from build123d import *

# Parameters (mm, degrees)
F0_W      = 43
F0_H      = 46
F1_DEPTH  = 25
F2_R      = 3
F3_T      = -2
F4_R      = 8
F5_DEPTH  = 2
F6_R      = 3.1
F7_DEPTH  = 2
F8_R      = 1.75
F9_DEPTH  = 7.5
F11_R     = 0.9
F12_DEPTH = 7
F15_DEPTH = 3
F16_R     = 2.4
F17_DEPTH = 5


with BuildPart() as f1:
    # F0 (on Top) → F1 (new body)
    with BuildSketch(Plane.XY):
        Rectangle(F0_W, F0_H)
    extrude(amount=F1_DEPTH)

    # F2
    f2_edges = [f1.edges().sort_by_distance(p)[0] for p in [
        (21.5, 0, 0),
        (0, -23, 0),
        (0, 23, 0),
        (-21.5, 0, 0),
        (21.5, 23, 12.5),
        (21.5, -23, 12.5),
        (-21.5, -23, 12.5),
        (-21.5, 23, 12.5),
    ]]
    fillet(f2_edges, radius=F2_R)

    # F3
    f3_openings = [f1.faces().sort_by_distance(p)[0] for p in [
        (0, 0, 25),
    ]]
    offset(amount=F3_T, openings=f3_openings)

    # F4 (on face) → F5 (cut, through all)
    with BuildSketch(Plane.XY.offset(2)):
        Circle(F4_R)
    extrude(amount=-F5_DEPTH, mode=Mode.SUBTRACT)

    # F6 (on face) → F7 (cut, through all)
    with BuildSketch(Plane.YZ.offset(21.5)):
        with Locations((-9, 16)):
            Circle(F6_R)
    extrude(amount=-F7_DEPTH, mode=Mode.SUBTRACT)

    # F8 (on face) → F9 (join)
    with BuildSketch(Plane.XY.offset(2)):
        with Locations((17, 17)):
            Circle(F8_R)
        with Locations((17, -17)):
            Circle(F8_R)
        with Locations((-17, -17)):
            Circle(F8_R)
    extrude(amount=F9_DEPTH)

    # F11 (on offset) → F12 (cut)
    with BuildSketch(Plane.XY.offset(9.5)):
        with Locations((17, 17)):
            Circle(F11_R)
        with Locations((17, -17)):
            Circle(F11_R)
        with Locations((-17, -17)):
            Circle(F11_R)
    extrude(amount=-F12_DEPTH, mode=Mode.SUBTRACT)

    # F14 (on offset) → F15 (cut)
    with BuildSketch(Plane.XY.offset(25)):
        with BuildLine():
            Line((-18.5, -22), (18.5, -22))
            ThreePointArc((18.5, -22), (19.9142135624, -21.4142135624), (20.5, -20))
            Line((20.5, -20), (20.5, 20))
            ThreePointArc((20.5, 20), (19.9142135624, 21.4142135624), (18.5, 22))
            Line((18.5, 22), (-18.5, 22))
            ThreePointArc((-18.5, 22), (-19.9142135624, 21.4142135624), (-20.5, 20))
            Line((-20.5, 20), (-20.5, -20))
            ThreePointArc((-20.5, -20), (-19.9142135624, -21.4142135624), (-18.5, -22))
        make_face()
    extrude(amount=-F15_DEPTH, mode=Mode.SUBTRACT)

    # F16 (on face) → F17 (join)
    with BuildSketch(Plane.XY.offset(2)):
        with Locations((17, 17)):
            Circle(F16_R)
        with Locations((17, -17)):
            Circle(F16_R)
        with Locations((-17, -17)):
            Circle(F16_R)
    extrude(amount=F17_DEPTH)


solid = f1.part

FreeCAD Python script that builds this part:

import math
import FreeCAD as App
import Part
import Sketcher


def edges_at(feature, points):
    """Names of the edges that pass closest to the given points."""
    edges = feature.Shape.Edges
    near = lambda p: min(range(len(edges)), key=lambda i: edges[i].distToShape(Part.Vertex(*p))[0])
    return sorted({f"Edge{near(p) + 1}" for p in points})


def faces_at(feature, points):
    """Names of the faces that lie closest to the given points."""
    faces = feature.Shape.Faces
    near = lambda p: min(range(len(faces)), key=lambda i: faces[i].distToShape(Part.Vertex(*p))[0])
    return sorted({f"Face{near(p) + 1}" for p in points})

doc = App.newDocument("Part")
body = doc.addObject("PartDesign::Body", "Body")

sketch1 = doc.addObject("Sketcher::SketchObject", "Sketch")
body.addObject(sketch1)
sketch1.AttachmentSupport = (doc.XY_Plane, [""])
sketch1.MapMode = "FlatFace"
sketch1.addGeometry([
    Part.LineSegment(App.Vector(-22, 23, 0), App.Vector(-22, -23, 0)),
    Part.LineSegment(App.Vector(-22, -23, 0), App.Vector(22, -23, 0)),
    Part.LineSegment(App.Vector(22, -23, 0), App.Vector(22, 23, 0)),
    Part.LineSegment(App.Vector(22, 23, 0), App.Vector(-22, 23, 0)),
], False)
sketch1.addConstraint([
    Sketcher.Constraint("Coincident", 0, 2, 1, 1),
    Sketcher.Constraint("Coincident", 1, 2, 2, 1),
    Sketcher.Constraint("Coincident", 2, 2, 3, 1),
    Sketcher.Constraint("Coincident", 3, 2, 0, 1),
    Sketcher.Constraint("Vertical", 0),
    Sketcher.Constraint("Horizontal", 1),
    Sketcher.Constraint("Vertical", 2),
    Sketcher.Constraint("Horizontal", 3),
    Sketcher.Constraint("Symmetric", 0, 2, 2, 2, -1, 1),
    Sketcher.Constraint("DistanceX", 1, 1, 1, 2, 43.0),
    Sketcher.Constraint("DistanceY", 0, 2, 0, 1, 46.0),
])
pad1 = doc.addObject("PartDesign::Pad", "Pad")
body.addObject(pad1)
pad1.Profile = sketch1
pad1.Length = 25
doc.recompute()

fillet = doc.addObject("PartDesign::Fillet", "Fillet")
body.addObject(fillet)
fillet.Base = (pad1, edges_at(pad1, [
    (21.5, 0, 0),
    (0, -23, 0),
    (0, 23, 0),
    (-21.5, 0, 0),
    (21.5, 23, 12.5),
    (21.5, -23, 12.5),
    (-21.5, -23, 12.5),
    (-21.5, 23, 12.5),
]))
fillet.Radius = 3
doc.recompute()

thickness = doc.addObject("PartDesign::Thickness", "Thickness")
body.addObject(thickness)
thickness.Base = (fillet, faces_at(fillet, [(0, 0, 25)]))
thickness.Value = 2
thickness.Reversed = True
thickness.Join = "Arc"

sketch2 = doc.addObject("Sketcher::SketchObject", "Sketch001")
body.addObject(sketch2)
sketch2.AttachmentSupport = (doc.XY_Plane, [""])
sketch2.MapMode = "FlatFace"
sketch2.AttachmentOffset = App.Placement(App.Vector(0, 0, 2), App.Rotation())
sketch2.addGeometry(Part.Circle(App.Vector(0, 0, 0), App.Vector(0, 0, 1), 8), False)
sketch2.addConstraint([
    Sketcher.Constraint("Coincident", 0, 3, -1, 1),
    Sketcher.Constraint("Diameter", 0, 16.0),
])
pocket1 = doc.addObject("PartDesign::Pocket", "Pocket")
body.addObject(pocket1)
pocket1.Profile = sketch2
pocket1.Type = "ThroughAll"

sketch3 = doc.addObject("Sketcher::SketchObject", "Sketch002")
body.addObject(sketch3)
sketch3.AttachmentSupport = (doc.YZ_Plane, [""])
sketch3.MapMode = "FlatFace"
sketch3.AttachmentOffset = App.Placement(App.Vector(0, 0, 21.5), App.Rotation())
sketch3.addGeometry(Part.Circle(App.Vector(-9, 16, 0), App.Vector(0, 0, 1), 3.1), False)
sketch3.addConstraint([
    Sketcher.Constraint("Diameter", 0, 6.2),
    Sketcher.Constraint("DistanceX", 0, 3, -1, 1, 9.0),
    Sketcher.Constraint("DistanceY", -1, 1, 0, 3, 16.0),
])
pocket2 = doc.addObject("PartDesign::Pocket", "Pocket001")
body.addObject(pocket2)
pocket2.Profile = sketch3
pocket2.Length = 2

sketch4 = doc.addObject("Sketcher::SketchObject", "Sketch003")
body.addObject(sketch4)
sketch4.AttachmentSupport = (doc.XY_Plane, [""])
sketch4.MapMode = "FlatFace"
sketch4.AttachmentOffset = App.Placement(App.Vector(0, 0, 2), App.Rotation())
sketch4.addGeometry([
    Part.Circle(App.Vector(17, 17, 0), App.Vector(0, 0, 1), 1.8),
    Part.Circle(App.Vector(17, -17, 0), App.Vector(0, 0, 1), 1.8),
    Part.Circle(App.Vector(-17, -17, 0), App.Vector(0, 0, 1), 1.8),
], False)
sketch4.addConstraint([
    Sketcher.Constraint("Equal", 0, 1),
    Sketcher.Constraint("Equal", 1, 2),
    Sketcher.Constraint("Symmetric", 0, 3, 2, 3, -1, 1),
    Sketcher.Constraint("Symmetric", 1, 3, 2, 3, -2),
    Sketcher.Constraint("Diameter", 0, 3.5),
    Sketcher.Constraint("DistanceX", -1, 1, 0, 3, 17.0),
    Sketcher.Constraint("DistanceY", -1, 1, 0, 3, 17.0),
])
pad2 = doc.addObject("PartDesign::Pad", "Pad001")
body.addObject(pad2)
pad2.Profile = sketch4
pad2.Length = 7.5

sketch5 = doc.addObject("Sketcher::SketchObject", "Sketch004")
body.addObject(sketch5)
sketch5.AttachmentSupport = (doc.XY_Plane, [""])
sketch5.MapMode = "FlatFace"
sketch5.AttachmentOffset = App.Placement(App.Vector(0, 0, 9.5), App.Rotation())
sketch5.addGeometry([
    Part.Circle(App.Vector(17, 17, 0), App.Vector(0, 0, 1), 0.9),
    Part.Circle(App.Vector(17, -17, 0), App.Vector(0, 0, 1), 0.9),
    Part.Circle(App.Vector(-17, -17, 0), App.Vector(0, 0, 1), 0.9),
], False)
sketch5.addConstraint([
    Sketcher.Constraint("Equal", 0, 1),
    Sketcher.Constraint("Equal", 1, 2),
    Sketcher.Constraint("Symmetric", 0, 3, 2, 3, -1, 1),
    Sketcher.Constraint("Symmetric", 1, 3, 2, 3, -2),
    Sketcher.Constraint("Diameter", 0, 1.8),
    Sketcher.Constraint("DistanceX", -1, 1, 0, 3, 17.0),
    Sketcher.Constraint("DistanceY", -1, 1, 0, 3, 17.0),
])
pocket3 = doc.addObject("PartDesign::Pocket", "Pocket002")
body.addObject(pocket3)
pocket3.Profile = sketch5
pocket3.Length = 7

sketch6 = doc.addObject("Sketcher::SketchObject", "Sketch005")
body.addObject(sketch6)
sketch6.AttachmentSupport = (doc.XY_Plane, [""])
sketch6.MapMode = "FlatFace"
sketch6.AttachmentOffset = App.Placement(App.Vector(0, 0, 25), App.Rotation())
sketch6.addGeometry([
    Part.LineSegment(App.Vector(-18.5, -22, 0), App.Vector(18.5, -22, 0)),
    Part.ArcOfCircle(Part.Circle(App.Vector(18.5, -20, 0), App.Vector(0, 0, 1), 2), math.radians(-90), math.radians(0)),
    Part.LineSegment(App.Vector(20.5, -20, 0), App.Vector(20.5, 20, 0)),
    Part.ArcOfCircle(Part.Circle(App.Vector(18.5, 20, 0), App.Vector(0, 0, 1), 2), math.radians(0), math.radians(90)),
    Part.LineSegment(App.Vector(18.5, 22, 0), App.Vector(-18.5, 22, 0)),
    Part.ArcOfCircle(Part.Circle(App.Vector(-18.5, 20, 0), App.Vector(0, 0, 1), 2), math.radians(90), math.radians(180)),
    Part.LineSegment(App.Vector(-20.5, 20, 0), App.Vector(-20.5, -20, 0)),
    Part.ArcOfCircle(Part.Circle(App.Vector(-18.5, -20, 0), App.Vector(0, 0, 1), 2), math.radians(180), math.radians(270)),
], False)
sketch6.addConstraint([
    Sketcher.Constraint("Tangent", 0, 2, 1, 1),
    Sketcher.Constraint("Tangent", 1, 2, 2, 1),
    Sketcher.Constraint("Tangent", 2, 2, 3, 1),
    Sketcher.Constraint("Tangent", 3, 2, 4, 1),
    Sketcher.Constraint("Tangent", 4, 2, 5, 1),
    Sketcher.Constraint("Tangent", 5, 2, 6, 1),
    Sketcher.Constraint("Tangent", 6, 2, 7, 1),
    Sketcher.Constraint("Tangent", 7, 2, 0, 1),
    Sketcher.Constraint("Horizontal", 0),
    Sketcher.Constraint("Vertical", 2),
    Sketcher.Constraint("Horizontal", 4),
    Sketcher.Constraint("Vertical", 6),
    Sketcher.Constraint("Equal", 1, 3),
    Sketcher.Constraint("Equal", 3, 5),
    Sketcher.Constraint("Equal", 5, 7),
    Sketcher.Constraint("Symmetric", 1, 3, 5, 3, -1, 1),
    Sketcher.Constraint("Radius", 1, 2.0),
    Sketcher.Constraint("DistanceX", 0, 1, 0, 2, 37.0),
    Sketcher.Constraint("DistanceY", 2, 1, 2, 2, 40.0),
])
pocket4 = doc.addObject("PartDesign::Pocket", "Pocket003")
body.addObject(pocket4)
pocket4.Profile = sketch6
pocket4.Length = 3

sketch7 = doc.addObject("Sketcher::SketchObject", "Sketch006")
body.addObject(sketch7)
sketch7.AttachmentSupport = (doc.XY_Plane, [""])
sketch7.MapMode = "FlatFace"
sketch7.AttachmentOffset = App.Placement(App.Vector(0, 0, 2), App.Rotation())
sketch7.addGeometry([
    Part.Circle(App.Vector(17, 17, 0), App.Vector(0, 0, 1), 2.4),
    Part.Circle(App.Vector(17, -17, 0), App.Vector(0, 0, 1), 2.4),
    Part.Circle(App.Vector(-17, -17, 0), App.Vector(0, 0, 1), 2.4),
], False)
sketch7.addConstraint([
    Sketcher.Constraint("Equal", 0, 1),
    Sketcher.Constraint("Equal", 1, 2),
    Sketcher.Constraint("Symmetric", 0, 3, 2, 3, -1, 1),
    Sketcher.Constraint("Symmetric", 1, 3, 2, 3, -2),
    Sketcher.Constraint("Diameter", 0, 4.8),
    Sketcher.Constraint("DistanceX", -1, 1, 0, 3, 17.0),
    Sketcher.Constraint("DistanceY", -1, 1, 0, 3, 17.0),
])
pad3 = doc.addObject("PartDesign::Pad", "Pad002")
body.addObject(pad3)
pad3.Profile = sketch7
pad3.Length = 5

doc.recompute()
